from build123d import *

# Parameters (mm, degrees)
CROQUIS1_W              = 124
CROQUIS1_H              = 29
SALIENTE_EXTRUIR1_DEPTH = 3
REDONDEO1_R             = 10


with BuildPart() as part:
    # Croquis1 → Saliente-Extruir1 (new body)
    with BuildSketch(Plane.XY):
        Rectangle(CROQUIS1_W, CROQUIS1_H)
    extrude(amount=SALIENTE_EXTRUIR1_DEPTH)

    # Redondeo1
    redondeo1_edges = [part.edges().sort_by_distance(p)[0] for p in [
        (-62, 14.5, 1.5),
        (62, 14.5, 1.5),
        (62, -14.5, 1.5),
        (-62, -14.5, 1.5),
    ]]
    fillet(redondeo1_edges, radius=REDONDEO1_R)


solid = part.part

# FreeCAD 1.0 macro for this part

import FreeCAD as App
import Part
import Sketcher
from FreeCAD import Vector


def edges_at(feature, points):
    """Names of the edges that pass closest to the given points."""
    edges = feature.Shape.Edges
    near = lambda p: min(range(len(edges)), key=lambda i: edges[i].distToShape(Part.Vertex(*p))[0])
    return sorted({f"Edge{near(p) + 1}" for p in points})


def add_polygon(sketch, points):
    """Adds a closed chain of lines whose ends are joined by coincident constraints."""
    first, n = sketch.GeometryCount, len(points)
    for a, b in zip(points, points[1:] + points[:1]):
        sketch.addGeometry(Part.LineSegment(App.Vector(*a, 0), App.Vector(*b, 0)), False)
    for i in range(n):
        sketch.addConstraint(Sketcher.Constraint("Coincident", first + i, 2, first + (i + 1) % n, 1))

doc = App.newDocument("Part")
body = doc.addObject("PartDesign::Body", "Body")

# Sketch on XY plane
sketch1 = body.newObject("Sketcher::SketchObject", "Sketch")
sketch1.AttachmentSupport = (doc.getObject("XY_Plane"), [""])
sketch1.MapMode = "FlatFace"
add_polygon(sketch1, [(-62, 14), (-62, -14), (62, -14), (62, 14)])  # lines 0-3
sketch1.addConstraint(Sketcher.Constraint("Vertical", 0))
sketch1.addConstraint(Sketcher.Constraint("Horizontal", 1))
sketch1.addConstraint(Sketcher.Constraint("Vertical", 2))
sketch1.addConstraint(Sketcher.Constraint("Horizontal", 3))
sketch1.addConstraint(Sketcher.Constraint("Symmetric", 0, 2, 2, 2, -1, 1))
sketch1.addConstraint(Sketcher.Constraint("DistanceX", 1, 1, 1, 2, 124.0))
sketch1.addConstraint(Sketcher.Constraint("DistanceY", 0, 2, 0, 1, 29.0))
pad1 = body.newObject("PartDesign::Pad", "Pad")
pad1.Profile = sketch1
pad1.Length = 3
doc.recompute()

fillet = body.newObject("PartDesign::Fillet", "Fillet")
fillet.Base = (pad1, edges_at(pad1, [
    (-62, 14.5, 1.5),
    (62, 14.5, 1.5),
    (62, -14.5, 1.5),
    (-62, -14.5, 1.5),
]))
fillet.Radius = 10

doc.recompute()
